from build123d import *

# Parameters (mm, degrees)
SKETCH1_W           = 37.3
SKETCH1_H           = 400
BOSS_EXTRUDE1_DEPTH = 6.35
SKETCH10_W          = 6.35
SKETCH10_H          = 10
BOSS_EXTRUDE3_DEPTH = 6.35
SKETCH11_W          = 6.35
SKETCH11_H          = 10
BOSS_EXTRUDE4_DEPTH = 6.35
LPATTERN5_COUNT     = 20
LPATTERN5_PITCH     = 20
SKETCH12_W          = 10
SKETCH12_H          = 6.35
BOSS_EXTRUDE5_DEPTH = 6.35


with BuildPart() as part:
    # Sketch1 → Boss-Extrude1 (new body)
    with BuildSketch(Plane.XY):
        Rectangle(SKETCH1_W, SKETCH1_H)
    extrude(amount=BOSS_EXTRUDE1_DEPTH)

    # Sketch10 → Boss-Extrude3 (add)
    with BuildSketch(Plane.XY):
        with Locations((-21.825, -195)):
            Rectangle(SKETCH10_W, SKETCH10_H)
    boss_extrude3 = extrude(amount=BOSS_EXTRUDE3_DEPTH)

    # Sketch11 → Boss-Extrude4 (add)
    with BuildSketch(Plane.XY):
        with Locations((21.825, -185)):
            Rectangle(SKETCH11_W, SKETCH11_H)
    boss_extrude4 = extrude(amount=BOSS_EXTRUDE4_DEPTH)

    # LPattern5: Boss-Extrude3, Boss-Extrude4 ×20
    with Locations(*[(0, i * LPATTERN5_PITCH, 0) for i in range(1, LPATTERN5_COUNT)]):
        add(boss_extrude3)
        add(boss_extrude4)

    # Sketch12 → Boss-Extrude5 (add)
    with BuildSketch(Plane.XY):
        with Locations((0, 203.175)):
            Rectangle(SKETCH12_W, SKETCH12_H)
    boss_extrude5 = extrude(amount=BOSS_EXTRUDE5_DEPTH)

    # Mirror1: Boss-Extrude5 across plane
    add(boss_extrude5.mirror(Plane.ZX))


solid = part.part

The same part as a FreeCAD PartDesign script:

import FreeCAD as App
import Part
import Sketcher

V = App.Vector
Q = App.Units.Quantity


def add_polygon(sketch, points):
    """Adds a closed chain of lines whose ends are joined by coincident constraints."""
    first, n = sketch.GeometryCount, len(points)
    for a, b in zip(points, points[1:] + points[:1]):
        sketch.addGeometry(Part.LineSegment(App.Vector(*a, 0), App.Vector(*b, 0)), False)
    for i in range(n):
        sketch.addConstraint(Sketcher.Constraint("Coincident", first + i, 2, first + (i + 1) % n, 1))

doc = App.newDocument("Part")
body = doc.addObject("PartDesign::Body", "Body")

sketch1 = doc.addObject("Sketcher::SketchObject", "Sketch")
body.addObject(sketch1)
sketch1.AttachmentSupport = (doc.XY_Plane, [""])
sketch1.MapMode = "FlatFace"
add_polygon(sketch1, [(-19, 200), (-19, -200), (19, -200), (19, 200)])
sketch1.addConstraint(Sketcher.Constraint("Vertical", 0))
sketch1.addConstraint(Sketcher.Constraint("Horizontal", 1))
sketch1.addConstraint(Sketcher.Constraint("Vertical", 2))
sketch1.addConstraint(Sketcher.Constraint("Horizontal", 3))
sketch1.addConstraint(Sketcher.Constraint("Symmetric", 0, 2, 2, 2, -1, 1))
sketch1.addConstraint(Sketcher.Constraint("DistanceY", 0, 2, 0, 1, Q("400 mm")))
sketch1.addConstraint(Sketcher.Constraint("DistanceX", 1, 1, 1, 2, Q("37.3 mm")))
pad1 = doc.addObject("PartDesign::Pad", "Pad")
body.addObject(pad1)
pad1.Profile = sketch1
pad1.Length = 6.35

sketch2 = doc.addObject("Sketcher::SketchObject", "Sketch001")
body.addObject(sketch2)
sketch2.AttachmentSupport = (doc.XY_Plane, [""])
sketch2.MapMode = "FlatFace"
add_polygon(sketch2, [(-25, -190), (-25, -200), (-19, -200), (-19, -190)])
sketch2.addConstraint(Sketcher.Constraint("Vertical", 0))
sketch2.addConstraint(Sketcher.Constraint("Horizontal", 1))
sketch2.addConstraint(Sketcher.Constraint("Vertical", 2))
sketch2.addConstraint(Sketcher.Constraint("Horizontal", 3))
sketch2.addConstraint(Sketcher.Constraint("DistanceY", 0, 2, 0, 1, Q("10 mm")))
sketch2.addConstraint(Sketcher.Constraint("DistanceX", 0, 2, -1, 1, Q("25 mm")))
sketch2.addConstraint(Sketcher.Constraint("DistanceY", 0, 2, -1, 1, Q("200 mm")))
sketch2.addConstraint(Sketcher.Constraint("DistanceX", 1, 1, 1, 2, Q("6.35 mm")))
pad2 = doc.addObject("PartDesign::Pad", "Pad001")
body.addObject(pad2)
pad2.Profile = sketch2
pad2.Length = 6.35

sketch3 = doc.addObject("Sketcher::SketchObject", "Sketch002")
body.addObject(sketch3)
sketch3.AttachmentSupport = (doc.XY_Plane, [""])
sketch3.MapMode = "FlatFace"
add_polygon(sketch3, [(19, -180), (19, -190), (25, -190), (25, -180)])
sketch3.addConstraint(Sketcher.Constraint("Vertical", 0))
sketch3.addConstraint(Sketcher.Constraint("Horizontal", 1))
sketch3.addConstraint(Sketcher.Constraint("Vertical", 2))
sketch3.addConstraint(Sketcher.Constraint("Horizontal", 3))
sketch3.addConstraint(Sketcher.Constraint("DistanceY", 0, 2, 0, 1, Q("10 mm")))
sketch3.addConstraint(Sketcher.Constraint("DistanceY", 0, 2, -1, 1, Q("190 mm")))
sketch3.addConstraint(Sketcher.Constraint("DistanceX", -1, 1, 1, 2, Q("25 mm")))
sketch3.addConstraint(Sketcher.Constraint("DistanceX", 1, 1, 1, 2, Q("6.35 mm")))
pad3 = doc.addObject("PartDesign::Pad", "Pad002")
body.addObject(pad3)
pad3.Profile = sketch3
pad3.Length = 6.35
doc.recompute()

linearpattern = doc.addObject("PartDesign::LinearPattern", "LinearPattern")
body.addObject(linearpattern)
linearpattern.Originals = [pad2, pad3]
linearpattern.Direction = (doc.Y_Axis, [""])
linearpattern.Mode = "offset"
linearpattern.Offset = 20
linearpattern.Occurrences = 20
body.Tip = linearpattern

sketch4 = doc.addObject("Sketcher::SketchObject", "Sketch003")
body.addObject(sketch4)
sketch4.AttachmentSupport = (doc.XY_Plane, [""])
sketch4.MapMode = "FlatFace"
add_polygon(sketch4, [(-5, 206), (-5, 200), (5, 200), (5, 206)])
sketch4.addConstraint(Sketcher.Constraint("Vertical", 0))
sketch4.addConstraint(Sketcher.Constraint("Horizontal", 1))
sketch4.addConstraint(Sketcher.Constraint("Vertical", 2))
sketch4.addConstraint(Sketcher.Constraint("Horizontal", 3))
sketch4.addConstraint(Sketcher.Constraint("DistanceX", 1, 1, 1, 2, Q("10 mm")))
sketch4.addConstraint(Sketcher.Constraint("DistanceX", 0, 2, -1, 1, Q("5 mm")))
sketch4.addConstraint(Sketcher.Constraint("DistanceY", -1, 1, 0, 2, Q("200 mm")))
sketch4.addConstraint(Sketcher.Constraint("DistanceY", 0, 2, 0, 1, Q("6.35 mm")))
pad4 = doc.addObject("PartDesign::Pad", "Pad003")
body.addObject(pad4)
pad4.Profile = sketch4
pad4.Length = 6.35
doc.recompute()

mirrored = doc.addObject("PartDesign::Mirrored", "Mirrored")
body.addObject(mirrored)
mirrored.Originals = [pad4]
mirrored.MirrorPlane = (doc.XZ_Plane, [""])
body.Tip = mirrored

doc.recompute()
